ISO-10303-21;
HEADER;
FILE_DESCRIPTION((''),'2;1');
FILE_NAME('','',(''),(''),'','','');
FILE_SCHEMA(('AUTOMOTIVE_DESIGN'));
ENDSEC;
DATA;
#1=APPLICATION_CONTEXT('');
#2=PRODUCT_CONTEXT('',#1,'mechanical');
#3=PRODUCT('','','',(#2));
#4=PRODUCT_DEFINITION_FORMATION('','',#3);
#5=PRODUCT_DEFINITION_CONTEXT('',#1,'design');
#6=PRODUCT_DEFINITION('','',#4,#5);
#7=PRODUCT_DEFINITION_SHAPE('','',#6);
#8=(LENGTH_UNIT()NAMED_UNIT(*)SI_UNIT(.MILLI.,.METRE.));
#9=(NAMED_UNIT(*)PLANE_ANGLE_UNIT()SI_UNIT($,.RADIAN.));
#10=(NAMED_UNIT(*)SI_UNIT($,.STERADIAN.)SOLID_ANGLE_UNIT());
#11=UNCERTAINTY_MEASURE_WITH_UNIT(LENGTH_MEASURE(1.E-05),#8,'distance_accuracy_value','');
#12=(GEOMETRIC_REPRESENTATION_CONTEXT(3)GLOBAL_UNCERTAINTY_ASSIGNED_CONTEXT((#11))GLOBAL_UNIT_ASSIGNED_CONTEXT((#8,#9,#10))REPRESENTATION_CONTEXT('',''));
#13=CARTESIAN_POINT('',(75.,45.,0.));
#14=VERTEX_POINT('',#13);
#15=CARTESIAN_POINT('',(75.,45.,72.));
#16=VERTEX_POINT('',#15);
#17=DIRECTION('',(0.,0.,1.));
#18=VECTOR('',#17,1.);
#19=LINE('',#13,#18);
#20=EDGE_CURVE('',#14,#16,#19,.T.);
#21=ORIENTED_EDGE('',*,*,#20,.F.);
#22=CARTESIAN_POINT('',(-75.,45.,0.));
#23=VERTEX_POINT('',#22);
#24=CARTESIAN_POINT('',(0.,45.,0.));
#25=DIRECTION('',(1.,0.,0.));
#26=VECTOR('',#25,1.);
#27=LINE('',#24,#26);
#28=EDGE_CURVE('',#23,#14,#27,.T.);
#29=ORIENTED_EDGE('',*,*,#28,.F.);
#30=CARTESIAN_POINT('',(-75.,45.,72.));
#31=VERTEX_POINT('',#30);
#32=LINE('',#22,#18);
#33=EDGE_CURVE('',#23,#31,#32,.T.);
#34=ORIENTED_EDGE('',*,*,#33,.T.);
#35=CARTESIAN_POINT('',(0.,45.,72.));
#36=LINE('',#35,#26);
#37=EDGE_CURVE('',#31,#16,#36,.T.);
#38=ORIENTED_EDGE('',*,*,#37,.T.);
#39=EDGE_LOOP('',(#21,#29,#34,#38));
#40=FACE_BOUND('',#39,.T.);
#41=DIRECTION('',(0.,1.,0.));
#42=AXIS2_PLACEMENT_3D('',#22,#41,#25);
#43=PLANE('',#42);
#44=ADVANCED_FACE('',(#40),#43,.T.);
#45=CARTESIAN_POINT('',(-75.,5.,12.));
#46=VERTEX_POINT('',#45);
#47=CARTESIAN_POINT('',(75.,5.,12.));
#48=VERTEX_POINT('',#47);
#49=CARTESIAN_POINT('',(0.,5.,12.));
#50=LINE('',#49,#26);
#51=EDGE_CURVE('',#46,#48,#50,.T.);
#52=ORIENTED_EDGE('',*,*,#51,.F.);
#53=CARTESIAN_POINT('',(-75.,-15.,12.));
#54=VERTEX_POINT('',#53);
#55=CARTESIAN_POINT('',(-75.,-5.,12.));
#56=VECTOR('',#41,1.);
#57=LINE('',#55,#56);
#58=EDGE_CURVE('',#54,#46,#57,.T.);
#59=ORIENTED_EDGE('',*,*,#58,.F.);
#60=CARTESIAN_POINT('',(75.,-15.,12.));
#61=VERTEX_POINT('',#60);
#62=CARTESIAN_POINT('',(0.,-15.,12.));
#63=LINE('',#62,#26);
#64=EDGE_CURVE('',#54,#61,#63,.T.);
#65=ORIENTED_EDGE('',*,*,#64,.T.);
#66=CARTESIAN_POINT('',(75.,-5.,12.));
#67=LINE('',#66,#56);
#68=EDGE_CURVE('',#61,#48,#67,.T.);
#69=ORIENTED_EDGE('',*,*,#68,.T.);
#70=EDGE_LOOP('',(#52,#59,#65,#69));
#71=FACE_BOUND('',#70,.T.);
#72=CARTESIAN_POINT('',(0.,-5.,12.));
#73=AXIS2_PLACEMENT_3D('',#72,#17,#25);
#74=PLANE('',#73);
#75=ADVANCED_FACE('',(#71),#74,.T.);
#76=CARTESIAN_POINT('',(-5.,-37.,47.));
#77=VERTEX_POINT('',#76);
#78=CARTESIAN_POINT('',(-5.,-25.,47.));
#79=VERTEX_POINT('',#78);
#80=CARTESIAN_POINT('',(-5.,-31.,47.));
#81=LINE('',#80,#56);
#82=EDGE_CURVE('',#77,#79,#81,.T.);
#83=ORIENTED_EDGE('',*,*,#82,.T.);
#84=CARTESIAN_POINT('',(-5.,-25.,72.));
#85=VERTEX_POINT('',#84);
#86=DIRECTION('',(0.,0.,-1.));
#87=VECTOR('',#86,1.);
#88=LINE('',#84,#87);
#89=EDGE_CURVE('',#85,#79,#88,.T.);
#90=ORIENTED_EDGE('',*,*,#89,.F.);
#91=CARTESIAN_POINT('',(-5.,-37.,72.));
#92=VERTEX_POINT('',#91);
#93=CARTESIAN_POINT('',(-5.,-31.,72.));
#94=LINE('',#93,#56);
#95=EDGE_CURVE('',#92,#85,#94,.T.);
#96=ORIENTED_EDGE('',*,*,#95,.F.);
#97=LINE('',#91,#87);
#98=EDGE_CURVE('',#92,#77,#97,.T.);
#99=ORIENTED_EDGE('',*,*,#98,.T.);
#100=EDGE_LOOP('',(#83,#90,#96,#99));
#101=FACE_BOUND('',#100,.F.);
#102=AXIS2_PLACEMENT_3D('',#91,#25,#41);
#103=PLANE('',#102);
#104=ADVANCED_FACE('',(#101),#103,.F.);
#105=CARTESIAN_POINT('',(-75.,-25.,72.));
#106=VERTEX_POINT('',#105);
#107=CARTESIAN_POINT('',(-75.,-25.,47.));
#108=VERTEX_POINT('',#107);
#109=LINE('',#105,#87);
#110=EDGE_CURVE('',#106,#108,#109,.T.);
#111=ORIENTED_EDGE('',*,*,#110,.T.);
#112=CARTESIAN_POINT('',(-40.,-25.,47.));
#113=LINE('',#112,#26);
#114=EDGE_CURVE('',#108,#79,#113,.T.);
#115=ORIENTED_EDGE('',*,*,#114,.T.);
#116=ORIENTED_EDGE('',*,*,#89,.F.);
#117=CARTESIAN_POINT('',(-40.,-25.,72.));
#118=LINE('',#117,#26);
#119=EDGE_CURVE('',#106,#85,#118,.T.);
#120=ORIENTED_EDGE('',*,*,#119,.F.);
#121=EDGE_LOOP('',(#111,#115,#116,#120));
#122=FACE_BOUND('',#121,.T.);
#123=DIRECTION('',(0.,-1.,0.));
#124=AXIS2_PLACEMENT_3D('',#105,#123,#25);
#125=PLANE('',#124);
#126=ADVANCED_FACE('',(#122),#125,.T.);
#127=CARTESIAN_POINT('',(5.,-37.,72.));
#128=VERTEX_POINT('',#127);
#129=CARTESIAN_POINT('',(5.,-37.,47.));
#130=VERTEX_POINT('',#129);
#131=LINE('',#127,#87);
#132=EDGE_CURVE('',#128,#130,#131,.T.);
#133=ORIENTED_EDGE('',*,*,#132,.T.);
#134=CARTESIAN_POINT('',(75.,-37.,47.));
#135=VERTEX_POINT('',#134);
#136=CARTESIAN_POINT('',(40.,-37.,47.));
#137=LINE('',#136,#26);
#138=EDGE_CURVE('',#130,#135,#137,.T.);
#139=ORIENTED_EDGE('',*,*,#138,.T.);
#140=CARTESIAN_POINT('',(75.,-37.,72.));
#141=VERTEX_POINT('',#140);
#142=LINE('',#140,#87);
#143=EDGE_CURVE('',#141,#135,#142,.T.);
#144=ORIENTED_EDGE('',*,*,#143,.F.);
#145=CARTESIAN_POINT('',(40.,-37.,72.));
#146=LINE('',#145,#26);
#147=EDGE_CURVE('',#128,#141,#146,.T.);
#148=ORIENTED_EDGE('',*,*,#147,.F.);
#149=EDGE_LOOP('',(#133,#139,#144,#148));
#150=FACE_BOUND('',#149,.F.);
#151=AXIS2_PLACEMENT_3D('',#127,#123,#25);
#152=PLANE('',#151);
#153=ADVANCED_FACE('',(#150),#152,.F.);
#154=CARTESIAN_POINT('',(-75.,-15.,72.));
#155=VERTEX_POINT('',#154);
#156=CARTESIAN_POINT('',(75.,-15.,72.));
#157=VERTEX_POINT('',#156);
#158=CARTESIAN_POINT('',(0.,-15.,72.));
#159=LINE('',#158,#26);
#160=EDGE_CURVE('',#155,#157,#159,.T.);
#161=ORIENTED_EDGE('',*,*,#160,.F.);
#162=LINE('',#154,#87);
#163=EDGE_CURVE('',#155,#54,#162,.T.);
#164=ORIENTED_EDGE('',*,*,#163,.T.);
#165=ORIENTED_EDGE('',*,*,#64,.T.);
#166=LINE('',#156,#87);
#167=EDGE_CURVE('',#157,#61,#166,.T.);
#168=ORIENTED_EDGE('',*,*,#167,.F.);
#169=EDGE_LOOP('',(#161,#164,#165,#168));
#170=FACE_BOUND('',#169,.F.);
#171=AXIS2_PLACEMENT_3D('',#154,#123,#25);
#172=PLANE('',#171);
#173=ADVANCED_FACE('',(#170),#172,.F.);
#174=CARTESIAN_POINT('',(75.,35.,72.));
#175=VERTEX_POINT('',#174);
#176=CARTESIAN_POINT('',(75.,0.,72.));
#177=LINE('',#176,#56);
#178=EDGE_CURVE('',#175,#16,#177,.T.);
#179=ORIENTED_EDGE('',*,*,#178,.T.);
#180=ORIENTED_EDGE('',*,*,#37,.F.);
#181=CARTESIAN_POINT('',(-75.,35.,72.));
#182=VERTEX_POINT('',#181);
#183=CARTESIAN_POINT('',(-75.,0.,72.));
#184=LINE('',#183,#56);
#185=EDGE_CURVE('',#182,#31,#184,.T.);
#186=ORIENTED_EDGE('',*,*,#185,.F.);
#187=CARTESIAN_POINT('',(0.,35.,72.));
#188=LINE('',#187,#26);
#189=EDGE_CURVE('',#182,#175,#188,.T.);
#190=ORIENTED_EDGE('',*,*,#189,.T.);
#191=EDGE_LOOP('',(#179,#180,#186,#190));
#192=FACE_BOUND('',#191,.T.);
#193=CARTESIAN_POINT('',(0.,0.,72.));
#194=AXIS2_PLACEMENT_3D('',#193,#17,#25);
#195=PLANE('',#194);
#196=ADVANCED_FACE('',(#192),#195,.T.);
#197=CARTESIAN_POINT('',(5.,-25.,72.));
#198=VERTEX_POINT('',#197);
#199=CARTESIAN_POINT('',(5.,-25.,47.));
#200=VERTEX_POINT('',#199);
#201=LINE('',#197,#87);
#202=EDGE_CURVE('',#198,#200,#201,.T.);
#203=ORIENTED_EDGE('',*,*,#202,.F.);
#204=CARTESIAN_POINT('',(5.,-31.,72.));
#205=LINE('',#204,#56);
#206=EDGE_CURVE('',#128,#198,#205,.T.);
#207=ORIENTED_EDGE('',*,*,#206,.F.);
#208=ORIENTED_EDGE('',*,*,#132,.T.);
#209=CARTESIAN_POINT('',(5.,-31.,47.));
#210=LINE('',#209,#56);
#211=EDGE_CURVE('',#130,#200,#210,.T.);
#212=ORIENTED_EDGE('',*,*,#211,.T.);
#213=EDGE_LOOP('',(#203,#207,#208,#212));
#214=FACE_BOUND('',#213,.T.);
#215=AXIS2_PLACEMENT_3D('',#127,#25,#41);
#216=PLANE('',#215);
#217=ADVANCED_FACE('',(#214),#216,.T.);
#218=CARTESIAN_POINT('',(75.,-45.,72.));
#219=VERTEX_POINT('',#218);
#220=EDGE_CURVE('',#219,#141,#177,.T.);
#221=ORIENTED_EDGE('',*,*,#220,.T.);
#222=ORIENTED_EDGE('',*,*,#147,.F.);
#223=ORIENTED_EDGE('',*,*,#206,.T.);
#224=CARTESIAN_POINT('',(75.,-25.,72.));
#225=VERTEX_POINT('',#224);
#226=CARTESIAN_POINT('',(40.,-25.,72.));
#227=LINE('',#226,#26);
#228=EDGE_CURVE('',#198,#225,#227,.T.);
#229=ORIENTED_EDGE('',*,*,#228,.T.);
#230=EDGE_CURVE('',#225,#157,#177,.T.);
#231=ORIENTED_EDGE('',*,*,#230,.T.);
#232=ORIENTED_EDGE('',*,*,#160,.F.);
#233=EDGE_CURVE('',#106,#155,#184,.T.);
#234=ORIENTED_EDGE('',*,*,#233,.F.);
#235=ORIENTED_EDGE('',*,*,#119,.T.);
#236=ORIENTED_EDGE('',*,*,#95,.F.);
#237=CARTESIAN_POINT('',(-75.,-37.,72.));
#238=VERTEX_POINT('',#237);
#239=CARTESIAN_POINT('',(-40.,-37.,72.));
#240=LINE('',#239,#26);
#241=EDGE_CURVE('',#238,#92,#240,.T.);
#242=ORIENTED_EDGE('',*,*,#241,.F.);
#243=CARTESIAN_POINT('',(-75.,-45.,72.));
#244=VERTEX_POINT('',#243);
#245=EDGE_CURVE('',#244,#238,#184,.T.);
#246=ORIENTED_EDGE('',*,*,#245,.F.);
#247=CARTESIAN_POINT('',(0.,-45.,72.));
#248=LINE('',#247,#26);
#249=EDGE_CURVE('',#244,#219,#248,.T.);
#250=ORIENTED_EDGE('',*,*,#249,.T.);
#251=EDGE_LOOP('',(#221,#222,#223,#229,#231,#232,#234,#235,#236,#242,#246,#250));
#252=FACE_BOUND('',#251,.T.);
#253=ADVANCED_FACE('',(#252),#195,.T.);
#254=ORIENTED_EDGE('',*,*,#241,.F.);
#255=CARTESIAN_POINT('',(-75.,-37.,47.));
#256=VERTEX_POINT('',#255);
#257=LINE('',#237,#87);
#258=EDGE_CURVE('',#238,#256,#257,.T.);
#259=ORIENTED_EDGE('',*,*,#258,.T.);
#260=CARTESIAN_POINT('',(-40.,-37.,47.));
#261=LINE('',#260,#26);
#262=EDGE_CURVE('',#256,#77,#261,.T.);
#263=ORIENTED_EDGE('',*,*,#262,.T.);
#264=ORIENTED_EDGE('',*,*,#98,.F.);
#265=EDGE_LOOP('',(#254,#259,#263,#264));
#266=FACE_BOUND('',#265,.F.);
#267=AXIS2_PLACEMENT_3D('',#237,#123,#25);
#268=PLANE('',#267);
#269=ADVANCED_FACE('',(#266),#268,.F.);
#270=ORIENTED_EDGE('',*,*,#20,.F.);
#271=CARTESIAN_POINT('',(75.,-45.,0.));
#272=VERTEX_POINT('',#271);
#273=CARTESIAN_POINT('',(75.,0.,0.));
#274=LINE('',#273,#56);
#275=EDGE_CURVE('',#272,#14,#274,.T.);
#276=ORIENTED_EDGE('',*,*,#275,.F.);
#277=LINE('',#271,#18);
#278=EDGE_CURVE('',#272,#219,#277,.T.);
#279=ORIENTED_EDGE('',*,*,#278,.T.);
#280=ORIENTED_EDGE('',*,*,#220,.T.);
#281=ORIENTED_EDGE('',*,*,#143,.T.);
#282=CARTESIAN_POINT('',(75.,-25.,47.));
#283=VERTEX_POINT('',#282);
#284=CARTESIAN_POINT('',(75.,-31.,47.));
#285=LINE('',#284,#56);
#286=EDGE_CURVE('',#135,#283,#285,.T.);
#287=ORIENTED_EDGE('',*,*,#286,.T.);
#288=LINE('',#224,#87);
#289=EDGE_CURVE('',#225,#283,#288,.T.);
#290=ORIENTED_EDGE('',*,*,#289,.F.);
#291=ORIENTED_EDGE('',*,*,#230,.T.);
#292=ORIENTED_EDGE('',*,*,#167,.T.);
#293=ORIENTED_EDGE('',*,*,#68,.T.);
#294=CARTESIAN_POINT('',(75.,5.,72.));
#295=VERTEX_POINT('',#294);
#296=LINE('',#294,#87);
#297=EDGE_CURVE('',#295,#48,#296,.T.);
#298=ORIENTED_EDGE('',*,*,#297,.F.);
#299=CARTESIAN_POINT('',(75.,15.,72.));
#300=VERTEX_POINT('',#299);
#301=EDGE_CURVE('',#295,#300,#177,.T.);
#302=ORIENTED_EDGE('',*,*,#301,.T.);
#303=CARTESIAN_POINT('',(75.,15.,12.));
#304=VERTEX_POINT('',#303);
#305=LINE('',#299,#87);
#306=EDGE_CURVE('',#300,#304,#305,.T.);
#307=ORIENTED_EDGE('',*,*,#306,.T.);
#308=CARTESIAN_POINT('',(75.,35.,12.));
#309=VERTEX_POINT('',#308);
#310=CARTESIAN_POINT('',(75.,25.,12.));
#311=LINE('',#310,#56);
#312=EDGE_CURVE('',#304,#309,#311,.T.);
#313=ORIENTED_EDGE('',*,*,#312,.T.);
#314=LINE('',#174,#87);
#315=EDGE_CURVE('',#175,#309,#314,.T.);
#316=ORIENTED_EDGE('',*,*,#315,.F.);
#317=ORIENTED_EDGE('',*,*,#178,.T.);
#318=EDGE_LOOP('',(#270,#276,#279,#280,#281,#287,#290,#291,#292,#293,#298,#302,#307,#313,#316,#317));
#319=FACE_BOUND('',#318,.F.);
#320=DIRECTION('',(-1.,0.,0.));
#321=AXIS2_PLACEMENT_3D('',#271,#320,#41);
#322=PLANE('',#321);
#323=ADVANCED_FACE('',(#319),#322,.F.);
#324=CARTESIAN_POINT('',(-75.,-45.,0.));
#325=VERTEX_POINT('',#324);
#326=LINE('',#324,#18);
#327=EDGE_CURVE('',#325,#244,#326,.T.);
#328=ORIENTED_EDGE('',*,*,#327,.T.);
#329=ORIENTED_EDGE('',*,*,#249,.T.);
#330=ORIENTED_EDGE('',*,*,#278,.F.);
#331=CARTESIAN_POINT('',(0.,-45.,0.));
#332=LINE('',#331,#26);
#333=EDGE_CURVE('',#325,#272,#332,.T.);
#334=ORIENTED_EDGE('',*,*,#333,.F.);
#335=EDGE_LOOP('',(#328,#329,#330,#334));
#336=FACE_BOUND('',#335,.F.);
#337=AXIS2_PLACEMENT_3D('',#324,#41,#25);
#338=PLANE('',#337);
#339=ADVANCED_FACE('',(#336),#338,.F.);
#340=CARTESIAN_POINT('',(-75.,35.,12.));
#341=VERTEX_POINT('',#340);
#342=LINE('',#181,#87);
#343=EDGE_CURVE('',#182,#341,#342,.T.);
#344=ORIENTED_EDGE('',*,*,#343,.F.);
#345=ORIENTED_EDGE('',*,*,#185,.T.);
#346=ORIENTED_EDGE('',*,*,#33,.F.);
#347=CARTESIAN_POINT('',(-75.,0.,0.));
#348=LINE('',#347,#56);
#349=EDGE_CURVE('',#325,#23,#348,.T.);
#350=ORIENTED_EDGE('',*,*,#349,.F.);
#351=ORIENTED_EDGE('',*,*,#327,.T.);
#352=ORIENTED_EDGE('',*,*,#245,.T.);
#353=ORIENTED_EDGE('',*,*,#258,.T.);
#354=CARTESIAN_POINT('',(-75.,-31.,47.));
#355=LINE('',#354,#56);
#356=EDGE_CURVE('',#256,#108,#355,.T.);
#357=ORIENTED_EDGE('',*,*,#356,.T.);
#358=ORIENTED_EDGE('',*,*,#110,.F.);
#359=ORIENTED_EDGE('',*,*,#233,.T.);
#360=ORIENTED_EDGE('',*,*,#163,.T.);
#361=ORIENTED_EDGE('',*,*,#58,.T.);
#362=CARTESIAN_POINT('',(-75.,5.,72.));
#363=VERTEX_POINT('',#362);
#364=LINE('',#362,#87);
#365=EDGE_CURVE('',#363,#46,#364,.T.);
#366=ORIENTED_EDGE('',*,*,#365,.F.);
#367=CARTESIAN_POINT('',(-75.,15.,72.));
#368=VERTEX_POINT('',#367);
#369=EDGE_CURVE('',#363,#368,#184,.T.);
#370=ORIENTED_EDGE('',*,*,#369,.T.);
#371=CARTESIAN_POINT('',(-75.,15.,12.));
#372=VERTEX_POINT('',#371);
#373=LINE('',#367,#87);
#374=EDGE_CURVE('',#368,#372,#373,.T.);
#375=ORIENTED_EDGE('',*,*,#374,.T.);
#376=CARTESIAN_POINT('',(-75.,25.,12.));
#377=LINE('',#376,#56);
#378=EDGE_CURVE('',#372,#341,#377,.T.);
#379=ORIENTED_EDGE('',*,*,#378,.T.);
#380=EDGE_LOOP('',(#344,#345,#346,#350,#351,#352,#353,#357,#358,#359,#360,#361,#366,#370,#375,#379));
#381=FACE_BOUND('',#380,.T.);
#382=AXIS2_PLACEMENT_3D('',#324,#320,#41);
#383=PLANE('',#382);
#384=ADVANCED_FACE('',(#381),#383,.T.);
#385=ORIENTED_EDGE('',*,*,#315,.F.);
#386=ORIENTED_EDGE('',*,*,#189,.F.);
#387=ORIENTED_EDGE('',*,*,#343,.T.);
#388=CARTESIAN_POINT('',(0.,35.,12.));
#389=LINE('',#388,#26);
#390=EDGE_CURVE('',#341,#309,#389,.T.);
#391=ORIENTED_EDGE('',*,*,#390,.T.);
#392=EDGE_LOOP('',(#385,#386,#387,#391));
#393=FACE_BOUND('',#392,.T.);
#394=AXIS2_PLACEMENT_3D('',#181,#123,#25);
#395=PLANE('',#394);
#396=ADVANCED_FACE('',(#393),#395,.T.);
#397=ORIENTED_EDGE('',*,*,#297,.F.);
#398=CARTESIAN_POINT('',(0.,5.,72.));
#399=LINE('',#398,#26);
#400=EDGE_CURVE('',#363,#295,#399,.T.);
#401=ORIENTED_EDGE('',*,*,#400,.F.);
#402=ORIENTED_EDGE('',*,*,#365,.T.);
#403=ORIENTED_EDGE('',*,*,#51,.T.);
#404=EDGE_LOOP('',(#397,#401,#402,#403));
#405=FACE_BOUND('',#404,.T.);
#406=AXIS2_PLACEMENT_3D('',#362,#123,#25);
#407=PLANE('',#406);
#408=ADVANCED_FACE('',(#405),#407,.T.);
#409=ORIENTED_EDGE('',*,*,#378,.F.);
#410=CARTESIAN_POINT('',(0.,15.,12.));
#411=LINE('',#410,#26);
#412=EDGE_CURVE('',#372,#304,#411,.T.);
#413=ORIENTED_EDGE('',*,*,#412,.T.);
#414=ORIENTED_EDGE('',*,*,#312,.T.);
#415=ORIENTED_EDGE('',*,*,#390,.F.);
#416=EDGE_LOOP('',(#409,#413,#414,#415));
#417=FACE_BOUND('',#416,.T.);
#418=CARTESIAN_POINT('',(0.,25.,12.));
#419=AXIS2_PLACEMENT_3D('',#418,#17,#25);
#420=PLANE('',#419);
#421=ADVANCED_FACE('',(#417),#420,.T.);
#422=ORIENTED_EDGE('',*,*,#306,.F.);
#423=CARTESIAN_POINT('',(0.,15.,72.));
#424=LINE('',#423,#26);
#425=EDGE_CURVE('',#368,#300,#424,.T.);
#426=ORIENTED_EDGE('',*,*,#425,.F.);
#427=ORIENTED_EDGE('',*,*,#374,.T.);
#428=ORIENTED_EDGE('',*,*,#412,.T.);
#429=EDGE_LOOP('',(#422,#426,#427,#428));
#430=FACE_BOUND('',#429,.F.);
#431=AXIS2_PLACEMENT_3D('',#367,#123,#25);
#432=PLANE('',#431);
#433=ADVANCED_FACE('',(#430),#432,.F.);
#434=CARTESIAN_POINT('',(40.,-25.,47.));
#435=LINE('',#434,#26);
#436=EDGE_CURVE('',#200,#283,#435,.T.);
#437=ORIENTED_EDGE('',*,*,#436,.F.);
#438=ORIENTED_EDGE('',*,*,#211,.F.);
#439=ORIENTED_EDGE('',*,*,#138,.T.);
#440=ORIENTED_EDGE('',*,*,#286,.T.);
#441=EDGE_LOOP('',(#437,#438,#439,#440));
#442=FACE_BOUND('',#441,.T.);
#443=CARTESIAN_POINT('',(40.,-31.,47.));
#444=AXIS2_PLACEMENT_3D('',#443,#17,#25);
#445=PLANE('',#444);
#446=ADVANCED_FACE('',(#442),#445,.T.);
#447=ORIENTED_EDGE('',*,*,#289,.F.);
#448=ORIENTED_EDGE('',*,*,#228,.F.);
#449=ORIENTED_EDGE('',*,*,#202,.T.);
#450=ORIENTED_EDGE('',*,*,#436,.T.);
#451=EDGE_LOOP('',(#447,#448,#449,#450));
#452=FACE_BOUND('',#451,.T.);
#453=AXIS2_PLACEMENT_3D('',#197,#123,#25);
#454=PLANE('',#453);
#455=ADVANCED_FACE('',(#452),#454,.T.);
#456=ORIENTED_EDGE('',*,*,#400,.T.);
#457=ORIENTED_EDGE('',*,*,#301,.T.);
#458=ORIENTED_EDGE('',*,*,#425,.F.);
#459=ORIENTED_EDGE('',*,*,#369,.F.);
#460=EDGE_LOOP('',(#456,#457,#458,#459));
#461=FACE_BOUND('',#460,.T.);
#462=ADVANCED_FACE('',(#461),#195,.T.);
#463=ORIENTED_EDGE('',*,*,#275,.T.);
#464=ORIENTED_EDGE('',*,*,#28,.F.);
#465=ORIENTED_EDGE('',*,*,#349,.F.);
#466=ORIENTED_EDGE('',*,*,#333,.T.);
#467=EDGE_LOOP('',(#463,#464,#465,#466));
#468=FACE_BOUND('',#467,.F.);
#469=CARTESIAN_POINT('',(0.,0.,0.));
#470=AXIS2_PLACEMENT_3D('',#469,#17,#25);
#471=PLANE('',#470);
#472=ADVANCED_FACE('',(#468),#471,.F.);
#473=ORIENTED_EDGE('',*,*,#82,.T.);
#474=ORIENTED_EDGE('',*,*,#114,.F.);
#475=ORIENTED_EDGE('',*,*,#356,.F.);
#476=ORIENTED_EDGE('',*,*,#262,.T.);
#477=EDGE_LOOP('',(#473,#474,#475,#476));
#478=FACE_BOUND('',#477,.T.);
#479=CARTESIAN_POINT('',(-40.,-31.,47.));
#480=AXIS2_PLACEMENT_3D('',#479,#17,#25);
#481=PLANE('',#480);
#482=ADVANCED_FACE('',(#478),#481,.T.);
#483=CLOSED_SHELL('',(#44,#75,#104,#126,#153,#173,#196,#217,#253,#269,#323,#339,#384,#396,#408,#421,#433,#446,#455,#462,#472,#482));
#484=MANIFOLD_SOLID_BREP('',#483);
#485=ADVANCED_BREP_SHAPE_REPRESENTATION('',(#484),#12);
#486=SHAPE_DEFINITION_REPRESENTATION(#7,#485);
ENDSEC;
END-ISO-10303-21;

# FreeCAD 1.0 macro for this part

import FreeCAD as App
import Part
import Sketcher
from FreeCAD import Vector
Q = App.Units.Quantity


def add_polygon(sketch, points):
    """Adds a closed chain of lines whose ends are joined by coincident constraints."""
    first, n = sketch.GeometryCount, len(points)
    for a, b in zip(points, points[1:] + points[:1]):
        sketch.addGeometry(Part.LineSegment(App.Vector(*a, 0), App.Vector(*b, 0)), False)
    for i in range(n):
        sketch.addConstraint(Sketcher.Constraint("Coincident", first + i, 2, first + (i + 1) % n, 1))

doc = App.newDocument("Part")
body = doc.addObject("PartDesign::Body", "Body")

sketch1 = body.newObject("Sketcher::SketchObject", "Sketch")
sketch1.AttachmentSupport = (doc.getObject("XY_Plane"), [""])
sketch1.MapMode = "FlatFace"
add_polygon(sketch1, [(-75, 45), (-75, -45), (75, -45), (75, 45)])
sketch1.addConstraint([
    Sketcher.Constraint("Vertical", 0),
    Sketcher.Constraint("Horizontal", 1),
    Sketcher.Constraint("Vertical", 2),
    Sketcher.Constraint("Horizontal", 3),
    Sketcher.Constraint("Symmetric", 0, 2, 2, 2, -1, 1),
    Sketcher.Constraint("DistanceX", 1, 1, 1, 2, Q("150 mm")),
    Sketcher.Constraint("DistanceY", 0, 2, 0, 1, Q("90 mm")),
])
pad1 = body.newObject("PartDesign::Pad", "Pad")
pad1.Profile = sketch1
pad1.Length = 72

sketch2 = body.newObject("Sketcher::SketchObject", "Sketch001")
sketch2.AttachmentSupport = (doc.getObject("XY_Plane"), [""])
sketch2.MapMode = "FlatFace"
sketch2.AttachmentOffset = App.Placement(Vector(0, 0, 72), App.Rotation())
add_polygon(sketch2, [(-75, -25), (-75, -37), (-5, -37), (-5, -25)])
add_polygon(sketch2, [(5, -25), (5, -37), (75, -37), (75, -25)])
sketch2.addConstraint([
    Sketcher.Constraint("Vertical", 0),
    Sketcher.Constraint("Horizontal", 1),
    Sketcher.Constraint("Vertical", 2),
    Sketcher.Constraint("Horizontal", 3),
    Sketcher.Constraint("Vertical", 4),
    Sketcher.Constraint("Horizontal", 5),
    Sketcher.Constraint("Vertical", 6),
    Sketcher.Constraint("Horizontal", 7),
    Sketcher.Constraint("Symmetric", 1, 2, 4, 2, -2),
    Sketcher.Constraint("Symmetric", 3, 2, 6, 2, -2),
    Sketcher.Constraint("DistanceX", 1, 1, 1, 2, Q("70 mm")),
    Sketcher.Constraint("DistanceY", 0, 2, 0, 1, Q("12 mm")),
    Sketcher.Constraint("DistanceX", 0, 2, -1, 1, Q("75 mm")),
    Sketcher.Constraint("DistanceY", 0, 2, -1, 1, Q("37 mm")),
])
pocket1 = body.newObject("PartDesign::Pocket", "Pocket")
pocket1.Profile = sketch2
pocket1.Length = 25

sketch3 = body.newObject("Sketcher::SketchObject", "Sketch002")
sketch3.AttachmentSupport = (doc.getObject("XY_Plane"), [""])
sketch3.MapMode = "FlatFace"
sketch3.AttachmentOffset = App.Placement(Vector(0, 0, 72), App.Rotation())
add_polygon(sketch3, [(-75, 35), (-75, 15), (75, 15), (75, 35)])
add_polygon(sketch3, [(-75, 5), (-75, -15), (75, -15), (75, 5)])
sketch3.addConstraint([
    Sketcher.Constraint("Vertical", 0),
    Sketcher.Constraint("Horizontal", 1),
    Sketcher.Constraint("Vertical", 2),
    Sketcher.Constraint("Horizontal", 3),
    Sketcher.Constraint("Vertical", 4),
    Sketcher.Constraint("Horizontal", 5),
    Sketcher.Constraint("Vertical", 6),
    Sketcher.Constraint("Horizontal", 7),
    Sketcher.Constraint("Symmetric", 1, 2, 4, 2, -1, 1),
    Sketcher.Constraint("Vertical", 3, 2, 4, 2),
    Sketcher.Constraint("Vertical", 2, 2, 5, 2),
    Sketcher.Constraint("Equal", 2, 4),
    Sketcher.Constraint("DistanceX", 1, 1, 1, 2, Q("150 mm")),
    Sketcher.Constraint("DistanceY", 0, 2, 0, 1, Q("20 mm")),
    Sketcher.Constraint("DistanceY", -1, 1, 0, 2, Q("15 mm")),
])
pocket2 = body.newObject("PartDesign::Pocket", "Pocket001")
pocket2.Profile = sketch3
pocket2.Length = 60

doc.recompute()
